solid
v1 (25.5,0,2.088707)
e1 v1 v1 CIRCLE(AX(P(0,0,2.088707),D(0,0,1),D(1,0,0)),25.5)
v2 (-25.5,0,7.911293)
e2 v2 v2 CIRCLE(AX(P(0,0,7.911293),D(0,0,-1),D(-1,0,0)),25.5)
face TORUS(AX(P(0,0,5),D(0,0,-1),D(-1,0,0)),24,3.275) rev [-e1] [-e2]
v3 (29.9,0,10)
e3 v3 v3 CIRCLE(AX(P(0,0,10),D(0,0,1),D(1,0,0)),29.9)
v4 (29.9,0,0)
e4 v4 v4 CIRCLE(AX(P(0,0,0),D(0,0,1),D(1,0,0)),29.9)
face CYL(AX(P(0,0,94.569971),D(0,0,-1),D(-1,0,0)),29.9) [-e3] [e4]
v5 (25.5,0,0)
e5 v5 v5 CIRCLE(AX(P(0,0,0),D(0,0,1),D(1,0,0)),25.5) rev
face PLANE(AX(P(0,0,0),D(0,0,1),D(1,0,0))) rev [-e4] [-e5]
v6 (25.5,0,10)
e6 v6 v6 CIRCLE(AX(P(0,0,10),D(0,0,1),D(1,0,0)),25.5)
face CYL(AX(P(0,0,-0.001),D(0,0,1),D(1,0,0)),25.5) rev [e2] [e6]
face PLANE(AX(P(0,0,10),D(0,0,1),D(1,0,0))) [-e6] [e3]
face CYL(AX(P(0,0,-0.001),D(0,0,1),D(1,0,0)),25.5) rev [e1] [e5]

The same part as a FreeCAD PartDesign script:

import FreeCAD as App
import Part
import Sketcher
from FreeCAD import Vector

doc = App.newDocument("Part")
body = doc.addObject("PartDesign::Body", "Body")

# Sketch on XY plane
sketch1 = body.newObject("Sketcher::SketchObject", "Sketch")
sketch1.AttachmentSupport = (doc.getObject("XY_Plane"), [""])
sketch1.MapMode = "FlatFace"
sketch1.addGeometry(Part.Circle(Vector(0, 0, 0), Vector(0, 0, 1), 30), False)
sketch1.addConstraint([
    Sketcher.Constraint("Coincident", 0, 3, -1, 1),
    Sketcher.Constraint("Diameter", 0, 59.8),
])
pad1 = body.newObject("PartDesign::Pad", "Pad")
pad1.Profile = sketch1
pad1.Length = 10

# Sketch on XY plane
sketch2 = body.newObject("Sketcher::SketchObject", "Sketch001")
sketch2.AttachmentSupport = (doc.getObject("XY_Plane"), [""])
sketch2.MapMode = "FlatFace"
sketch2.AttachmentOffset = App.Placement(Vector(0, 0, 10), App.Rotation())
sketch2.addGeometry(Part.Circle(Vector(0, 0, 0), Vector(0, 0, 1), 26), False)
sketch2.addConstraint([
    Sketcher.Constraint("Coincident", 0, 3, -1, 1),
    Sketcher.Constraint("Diameter", 0, 51.0),
])
pocket1 = body.newObject("PartDesign::Pocket", "Pocket")
pocket1.Profile = sketch2
pocket1.Type = "UpToFirst"

# Sketch on XZ plane
sketch3 = body.newObject("Sketcher::SketchObject", "Sketch002")
sketch3.AttachmentSupport = (doc.getObject("XZ_Plane"), [""])
sketch3.MapMode = "FlatFace"
sketch3.addGeometry(Part.Circle(Vector(-24, 5, 0), Vector(0, 0, 1), 3.3), False)
sketch3.addConstraint([
    Sketcher.Constraint("Diameter", 0, 6.55),
    Sketcher.Constraint("DistanceX", 0, 3, -1, 1, 24.0),
    Sketcher.Constraint("DistanceY", -1, 1, 0, 3, 5.0),
])
groove = body.newObject("PartDesign::Groove", "Groove")
groove.Profile = sketch3
groove.ReferenceAxis = (sketch3, ["V_Axis"])
groove.Angle = 360

doc.recompute()
